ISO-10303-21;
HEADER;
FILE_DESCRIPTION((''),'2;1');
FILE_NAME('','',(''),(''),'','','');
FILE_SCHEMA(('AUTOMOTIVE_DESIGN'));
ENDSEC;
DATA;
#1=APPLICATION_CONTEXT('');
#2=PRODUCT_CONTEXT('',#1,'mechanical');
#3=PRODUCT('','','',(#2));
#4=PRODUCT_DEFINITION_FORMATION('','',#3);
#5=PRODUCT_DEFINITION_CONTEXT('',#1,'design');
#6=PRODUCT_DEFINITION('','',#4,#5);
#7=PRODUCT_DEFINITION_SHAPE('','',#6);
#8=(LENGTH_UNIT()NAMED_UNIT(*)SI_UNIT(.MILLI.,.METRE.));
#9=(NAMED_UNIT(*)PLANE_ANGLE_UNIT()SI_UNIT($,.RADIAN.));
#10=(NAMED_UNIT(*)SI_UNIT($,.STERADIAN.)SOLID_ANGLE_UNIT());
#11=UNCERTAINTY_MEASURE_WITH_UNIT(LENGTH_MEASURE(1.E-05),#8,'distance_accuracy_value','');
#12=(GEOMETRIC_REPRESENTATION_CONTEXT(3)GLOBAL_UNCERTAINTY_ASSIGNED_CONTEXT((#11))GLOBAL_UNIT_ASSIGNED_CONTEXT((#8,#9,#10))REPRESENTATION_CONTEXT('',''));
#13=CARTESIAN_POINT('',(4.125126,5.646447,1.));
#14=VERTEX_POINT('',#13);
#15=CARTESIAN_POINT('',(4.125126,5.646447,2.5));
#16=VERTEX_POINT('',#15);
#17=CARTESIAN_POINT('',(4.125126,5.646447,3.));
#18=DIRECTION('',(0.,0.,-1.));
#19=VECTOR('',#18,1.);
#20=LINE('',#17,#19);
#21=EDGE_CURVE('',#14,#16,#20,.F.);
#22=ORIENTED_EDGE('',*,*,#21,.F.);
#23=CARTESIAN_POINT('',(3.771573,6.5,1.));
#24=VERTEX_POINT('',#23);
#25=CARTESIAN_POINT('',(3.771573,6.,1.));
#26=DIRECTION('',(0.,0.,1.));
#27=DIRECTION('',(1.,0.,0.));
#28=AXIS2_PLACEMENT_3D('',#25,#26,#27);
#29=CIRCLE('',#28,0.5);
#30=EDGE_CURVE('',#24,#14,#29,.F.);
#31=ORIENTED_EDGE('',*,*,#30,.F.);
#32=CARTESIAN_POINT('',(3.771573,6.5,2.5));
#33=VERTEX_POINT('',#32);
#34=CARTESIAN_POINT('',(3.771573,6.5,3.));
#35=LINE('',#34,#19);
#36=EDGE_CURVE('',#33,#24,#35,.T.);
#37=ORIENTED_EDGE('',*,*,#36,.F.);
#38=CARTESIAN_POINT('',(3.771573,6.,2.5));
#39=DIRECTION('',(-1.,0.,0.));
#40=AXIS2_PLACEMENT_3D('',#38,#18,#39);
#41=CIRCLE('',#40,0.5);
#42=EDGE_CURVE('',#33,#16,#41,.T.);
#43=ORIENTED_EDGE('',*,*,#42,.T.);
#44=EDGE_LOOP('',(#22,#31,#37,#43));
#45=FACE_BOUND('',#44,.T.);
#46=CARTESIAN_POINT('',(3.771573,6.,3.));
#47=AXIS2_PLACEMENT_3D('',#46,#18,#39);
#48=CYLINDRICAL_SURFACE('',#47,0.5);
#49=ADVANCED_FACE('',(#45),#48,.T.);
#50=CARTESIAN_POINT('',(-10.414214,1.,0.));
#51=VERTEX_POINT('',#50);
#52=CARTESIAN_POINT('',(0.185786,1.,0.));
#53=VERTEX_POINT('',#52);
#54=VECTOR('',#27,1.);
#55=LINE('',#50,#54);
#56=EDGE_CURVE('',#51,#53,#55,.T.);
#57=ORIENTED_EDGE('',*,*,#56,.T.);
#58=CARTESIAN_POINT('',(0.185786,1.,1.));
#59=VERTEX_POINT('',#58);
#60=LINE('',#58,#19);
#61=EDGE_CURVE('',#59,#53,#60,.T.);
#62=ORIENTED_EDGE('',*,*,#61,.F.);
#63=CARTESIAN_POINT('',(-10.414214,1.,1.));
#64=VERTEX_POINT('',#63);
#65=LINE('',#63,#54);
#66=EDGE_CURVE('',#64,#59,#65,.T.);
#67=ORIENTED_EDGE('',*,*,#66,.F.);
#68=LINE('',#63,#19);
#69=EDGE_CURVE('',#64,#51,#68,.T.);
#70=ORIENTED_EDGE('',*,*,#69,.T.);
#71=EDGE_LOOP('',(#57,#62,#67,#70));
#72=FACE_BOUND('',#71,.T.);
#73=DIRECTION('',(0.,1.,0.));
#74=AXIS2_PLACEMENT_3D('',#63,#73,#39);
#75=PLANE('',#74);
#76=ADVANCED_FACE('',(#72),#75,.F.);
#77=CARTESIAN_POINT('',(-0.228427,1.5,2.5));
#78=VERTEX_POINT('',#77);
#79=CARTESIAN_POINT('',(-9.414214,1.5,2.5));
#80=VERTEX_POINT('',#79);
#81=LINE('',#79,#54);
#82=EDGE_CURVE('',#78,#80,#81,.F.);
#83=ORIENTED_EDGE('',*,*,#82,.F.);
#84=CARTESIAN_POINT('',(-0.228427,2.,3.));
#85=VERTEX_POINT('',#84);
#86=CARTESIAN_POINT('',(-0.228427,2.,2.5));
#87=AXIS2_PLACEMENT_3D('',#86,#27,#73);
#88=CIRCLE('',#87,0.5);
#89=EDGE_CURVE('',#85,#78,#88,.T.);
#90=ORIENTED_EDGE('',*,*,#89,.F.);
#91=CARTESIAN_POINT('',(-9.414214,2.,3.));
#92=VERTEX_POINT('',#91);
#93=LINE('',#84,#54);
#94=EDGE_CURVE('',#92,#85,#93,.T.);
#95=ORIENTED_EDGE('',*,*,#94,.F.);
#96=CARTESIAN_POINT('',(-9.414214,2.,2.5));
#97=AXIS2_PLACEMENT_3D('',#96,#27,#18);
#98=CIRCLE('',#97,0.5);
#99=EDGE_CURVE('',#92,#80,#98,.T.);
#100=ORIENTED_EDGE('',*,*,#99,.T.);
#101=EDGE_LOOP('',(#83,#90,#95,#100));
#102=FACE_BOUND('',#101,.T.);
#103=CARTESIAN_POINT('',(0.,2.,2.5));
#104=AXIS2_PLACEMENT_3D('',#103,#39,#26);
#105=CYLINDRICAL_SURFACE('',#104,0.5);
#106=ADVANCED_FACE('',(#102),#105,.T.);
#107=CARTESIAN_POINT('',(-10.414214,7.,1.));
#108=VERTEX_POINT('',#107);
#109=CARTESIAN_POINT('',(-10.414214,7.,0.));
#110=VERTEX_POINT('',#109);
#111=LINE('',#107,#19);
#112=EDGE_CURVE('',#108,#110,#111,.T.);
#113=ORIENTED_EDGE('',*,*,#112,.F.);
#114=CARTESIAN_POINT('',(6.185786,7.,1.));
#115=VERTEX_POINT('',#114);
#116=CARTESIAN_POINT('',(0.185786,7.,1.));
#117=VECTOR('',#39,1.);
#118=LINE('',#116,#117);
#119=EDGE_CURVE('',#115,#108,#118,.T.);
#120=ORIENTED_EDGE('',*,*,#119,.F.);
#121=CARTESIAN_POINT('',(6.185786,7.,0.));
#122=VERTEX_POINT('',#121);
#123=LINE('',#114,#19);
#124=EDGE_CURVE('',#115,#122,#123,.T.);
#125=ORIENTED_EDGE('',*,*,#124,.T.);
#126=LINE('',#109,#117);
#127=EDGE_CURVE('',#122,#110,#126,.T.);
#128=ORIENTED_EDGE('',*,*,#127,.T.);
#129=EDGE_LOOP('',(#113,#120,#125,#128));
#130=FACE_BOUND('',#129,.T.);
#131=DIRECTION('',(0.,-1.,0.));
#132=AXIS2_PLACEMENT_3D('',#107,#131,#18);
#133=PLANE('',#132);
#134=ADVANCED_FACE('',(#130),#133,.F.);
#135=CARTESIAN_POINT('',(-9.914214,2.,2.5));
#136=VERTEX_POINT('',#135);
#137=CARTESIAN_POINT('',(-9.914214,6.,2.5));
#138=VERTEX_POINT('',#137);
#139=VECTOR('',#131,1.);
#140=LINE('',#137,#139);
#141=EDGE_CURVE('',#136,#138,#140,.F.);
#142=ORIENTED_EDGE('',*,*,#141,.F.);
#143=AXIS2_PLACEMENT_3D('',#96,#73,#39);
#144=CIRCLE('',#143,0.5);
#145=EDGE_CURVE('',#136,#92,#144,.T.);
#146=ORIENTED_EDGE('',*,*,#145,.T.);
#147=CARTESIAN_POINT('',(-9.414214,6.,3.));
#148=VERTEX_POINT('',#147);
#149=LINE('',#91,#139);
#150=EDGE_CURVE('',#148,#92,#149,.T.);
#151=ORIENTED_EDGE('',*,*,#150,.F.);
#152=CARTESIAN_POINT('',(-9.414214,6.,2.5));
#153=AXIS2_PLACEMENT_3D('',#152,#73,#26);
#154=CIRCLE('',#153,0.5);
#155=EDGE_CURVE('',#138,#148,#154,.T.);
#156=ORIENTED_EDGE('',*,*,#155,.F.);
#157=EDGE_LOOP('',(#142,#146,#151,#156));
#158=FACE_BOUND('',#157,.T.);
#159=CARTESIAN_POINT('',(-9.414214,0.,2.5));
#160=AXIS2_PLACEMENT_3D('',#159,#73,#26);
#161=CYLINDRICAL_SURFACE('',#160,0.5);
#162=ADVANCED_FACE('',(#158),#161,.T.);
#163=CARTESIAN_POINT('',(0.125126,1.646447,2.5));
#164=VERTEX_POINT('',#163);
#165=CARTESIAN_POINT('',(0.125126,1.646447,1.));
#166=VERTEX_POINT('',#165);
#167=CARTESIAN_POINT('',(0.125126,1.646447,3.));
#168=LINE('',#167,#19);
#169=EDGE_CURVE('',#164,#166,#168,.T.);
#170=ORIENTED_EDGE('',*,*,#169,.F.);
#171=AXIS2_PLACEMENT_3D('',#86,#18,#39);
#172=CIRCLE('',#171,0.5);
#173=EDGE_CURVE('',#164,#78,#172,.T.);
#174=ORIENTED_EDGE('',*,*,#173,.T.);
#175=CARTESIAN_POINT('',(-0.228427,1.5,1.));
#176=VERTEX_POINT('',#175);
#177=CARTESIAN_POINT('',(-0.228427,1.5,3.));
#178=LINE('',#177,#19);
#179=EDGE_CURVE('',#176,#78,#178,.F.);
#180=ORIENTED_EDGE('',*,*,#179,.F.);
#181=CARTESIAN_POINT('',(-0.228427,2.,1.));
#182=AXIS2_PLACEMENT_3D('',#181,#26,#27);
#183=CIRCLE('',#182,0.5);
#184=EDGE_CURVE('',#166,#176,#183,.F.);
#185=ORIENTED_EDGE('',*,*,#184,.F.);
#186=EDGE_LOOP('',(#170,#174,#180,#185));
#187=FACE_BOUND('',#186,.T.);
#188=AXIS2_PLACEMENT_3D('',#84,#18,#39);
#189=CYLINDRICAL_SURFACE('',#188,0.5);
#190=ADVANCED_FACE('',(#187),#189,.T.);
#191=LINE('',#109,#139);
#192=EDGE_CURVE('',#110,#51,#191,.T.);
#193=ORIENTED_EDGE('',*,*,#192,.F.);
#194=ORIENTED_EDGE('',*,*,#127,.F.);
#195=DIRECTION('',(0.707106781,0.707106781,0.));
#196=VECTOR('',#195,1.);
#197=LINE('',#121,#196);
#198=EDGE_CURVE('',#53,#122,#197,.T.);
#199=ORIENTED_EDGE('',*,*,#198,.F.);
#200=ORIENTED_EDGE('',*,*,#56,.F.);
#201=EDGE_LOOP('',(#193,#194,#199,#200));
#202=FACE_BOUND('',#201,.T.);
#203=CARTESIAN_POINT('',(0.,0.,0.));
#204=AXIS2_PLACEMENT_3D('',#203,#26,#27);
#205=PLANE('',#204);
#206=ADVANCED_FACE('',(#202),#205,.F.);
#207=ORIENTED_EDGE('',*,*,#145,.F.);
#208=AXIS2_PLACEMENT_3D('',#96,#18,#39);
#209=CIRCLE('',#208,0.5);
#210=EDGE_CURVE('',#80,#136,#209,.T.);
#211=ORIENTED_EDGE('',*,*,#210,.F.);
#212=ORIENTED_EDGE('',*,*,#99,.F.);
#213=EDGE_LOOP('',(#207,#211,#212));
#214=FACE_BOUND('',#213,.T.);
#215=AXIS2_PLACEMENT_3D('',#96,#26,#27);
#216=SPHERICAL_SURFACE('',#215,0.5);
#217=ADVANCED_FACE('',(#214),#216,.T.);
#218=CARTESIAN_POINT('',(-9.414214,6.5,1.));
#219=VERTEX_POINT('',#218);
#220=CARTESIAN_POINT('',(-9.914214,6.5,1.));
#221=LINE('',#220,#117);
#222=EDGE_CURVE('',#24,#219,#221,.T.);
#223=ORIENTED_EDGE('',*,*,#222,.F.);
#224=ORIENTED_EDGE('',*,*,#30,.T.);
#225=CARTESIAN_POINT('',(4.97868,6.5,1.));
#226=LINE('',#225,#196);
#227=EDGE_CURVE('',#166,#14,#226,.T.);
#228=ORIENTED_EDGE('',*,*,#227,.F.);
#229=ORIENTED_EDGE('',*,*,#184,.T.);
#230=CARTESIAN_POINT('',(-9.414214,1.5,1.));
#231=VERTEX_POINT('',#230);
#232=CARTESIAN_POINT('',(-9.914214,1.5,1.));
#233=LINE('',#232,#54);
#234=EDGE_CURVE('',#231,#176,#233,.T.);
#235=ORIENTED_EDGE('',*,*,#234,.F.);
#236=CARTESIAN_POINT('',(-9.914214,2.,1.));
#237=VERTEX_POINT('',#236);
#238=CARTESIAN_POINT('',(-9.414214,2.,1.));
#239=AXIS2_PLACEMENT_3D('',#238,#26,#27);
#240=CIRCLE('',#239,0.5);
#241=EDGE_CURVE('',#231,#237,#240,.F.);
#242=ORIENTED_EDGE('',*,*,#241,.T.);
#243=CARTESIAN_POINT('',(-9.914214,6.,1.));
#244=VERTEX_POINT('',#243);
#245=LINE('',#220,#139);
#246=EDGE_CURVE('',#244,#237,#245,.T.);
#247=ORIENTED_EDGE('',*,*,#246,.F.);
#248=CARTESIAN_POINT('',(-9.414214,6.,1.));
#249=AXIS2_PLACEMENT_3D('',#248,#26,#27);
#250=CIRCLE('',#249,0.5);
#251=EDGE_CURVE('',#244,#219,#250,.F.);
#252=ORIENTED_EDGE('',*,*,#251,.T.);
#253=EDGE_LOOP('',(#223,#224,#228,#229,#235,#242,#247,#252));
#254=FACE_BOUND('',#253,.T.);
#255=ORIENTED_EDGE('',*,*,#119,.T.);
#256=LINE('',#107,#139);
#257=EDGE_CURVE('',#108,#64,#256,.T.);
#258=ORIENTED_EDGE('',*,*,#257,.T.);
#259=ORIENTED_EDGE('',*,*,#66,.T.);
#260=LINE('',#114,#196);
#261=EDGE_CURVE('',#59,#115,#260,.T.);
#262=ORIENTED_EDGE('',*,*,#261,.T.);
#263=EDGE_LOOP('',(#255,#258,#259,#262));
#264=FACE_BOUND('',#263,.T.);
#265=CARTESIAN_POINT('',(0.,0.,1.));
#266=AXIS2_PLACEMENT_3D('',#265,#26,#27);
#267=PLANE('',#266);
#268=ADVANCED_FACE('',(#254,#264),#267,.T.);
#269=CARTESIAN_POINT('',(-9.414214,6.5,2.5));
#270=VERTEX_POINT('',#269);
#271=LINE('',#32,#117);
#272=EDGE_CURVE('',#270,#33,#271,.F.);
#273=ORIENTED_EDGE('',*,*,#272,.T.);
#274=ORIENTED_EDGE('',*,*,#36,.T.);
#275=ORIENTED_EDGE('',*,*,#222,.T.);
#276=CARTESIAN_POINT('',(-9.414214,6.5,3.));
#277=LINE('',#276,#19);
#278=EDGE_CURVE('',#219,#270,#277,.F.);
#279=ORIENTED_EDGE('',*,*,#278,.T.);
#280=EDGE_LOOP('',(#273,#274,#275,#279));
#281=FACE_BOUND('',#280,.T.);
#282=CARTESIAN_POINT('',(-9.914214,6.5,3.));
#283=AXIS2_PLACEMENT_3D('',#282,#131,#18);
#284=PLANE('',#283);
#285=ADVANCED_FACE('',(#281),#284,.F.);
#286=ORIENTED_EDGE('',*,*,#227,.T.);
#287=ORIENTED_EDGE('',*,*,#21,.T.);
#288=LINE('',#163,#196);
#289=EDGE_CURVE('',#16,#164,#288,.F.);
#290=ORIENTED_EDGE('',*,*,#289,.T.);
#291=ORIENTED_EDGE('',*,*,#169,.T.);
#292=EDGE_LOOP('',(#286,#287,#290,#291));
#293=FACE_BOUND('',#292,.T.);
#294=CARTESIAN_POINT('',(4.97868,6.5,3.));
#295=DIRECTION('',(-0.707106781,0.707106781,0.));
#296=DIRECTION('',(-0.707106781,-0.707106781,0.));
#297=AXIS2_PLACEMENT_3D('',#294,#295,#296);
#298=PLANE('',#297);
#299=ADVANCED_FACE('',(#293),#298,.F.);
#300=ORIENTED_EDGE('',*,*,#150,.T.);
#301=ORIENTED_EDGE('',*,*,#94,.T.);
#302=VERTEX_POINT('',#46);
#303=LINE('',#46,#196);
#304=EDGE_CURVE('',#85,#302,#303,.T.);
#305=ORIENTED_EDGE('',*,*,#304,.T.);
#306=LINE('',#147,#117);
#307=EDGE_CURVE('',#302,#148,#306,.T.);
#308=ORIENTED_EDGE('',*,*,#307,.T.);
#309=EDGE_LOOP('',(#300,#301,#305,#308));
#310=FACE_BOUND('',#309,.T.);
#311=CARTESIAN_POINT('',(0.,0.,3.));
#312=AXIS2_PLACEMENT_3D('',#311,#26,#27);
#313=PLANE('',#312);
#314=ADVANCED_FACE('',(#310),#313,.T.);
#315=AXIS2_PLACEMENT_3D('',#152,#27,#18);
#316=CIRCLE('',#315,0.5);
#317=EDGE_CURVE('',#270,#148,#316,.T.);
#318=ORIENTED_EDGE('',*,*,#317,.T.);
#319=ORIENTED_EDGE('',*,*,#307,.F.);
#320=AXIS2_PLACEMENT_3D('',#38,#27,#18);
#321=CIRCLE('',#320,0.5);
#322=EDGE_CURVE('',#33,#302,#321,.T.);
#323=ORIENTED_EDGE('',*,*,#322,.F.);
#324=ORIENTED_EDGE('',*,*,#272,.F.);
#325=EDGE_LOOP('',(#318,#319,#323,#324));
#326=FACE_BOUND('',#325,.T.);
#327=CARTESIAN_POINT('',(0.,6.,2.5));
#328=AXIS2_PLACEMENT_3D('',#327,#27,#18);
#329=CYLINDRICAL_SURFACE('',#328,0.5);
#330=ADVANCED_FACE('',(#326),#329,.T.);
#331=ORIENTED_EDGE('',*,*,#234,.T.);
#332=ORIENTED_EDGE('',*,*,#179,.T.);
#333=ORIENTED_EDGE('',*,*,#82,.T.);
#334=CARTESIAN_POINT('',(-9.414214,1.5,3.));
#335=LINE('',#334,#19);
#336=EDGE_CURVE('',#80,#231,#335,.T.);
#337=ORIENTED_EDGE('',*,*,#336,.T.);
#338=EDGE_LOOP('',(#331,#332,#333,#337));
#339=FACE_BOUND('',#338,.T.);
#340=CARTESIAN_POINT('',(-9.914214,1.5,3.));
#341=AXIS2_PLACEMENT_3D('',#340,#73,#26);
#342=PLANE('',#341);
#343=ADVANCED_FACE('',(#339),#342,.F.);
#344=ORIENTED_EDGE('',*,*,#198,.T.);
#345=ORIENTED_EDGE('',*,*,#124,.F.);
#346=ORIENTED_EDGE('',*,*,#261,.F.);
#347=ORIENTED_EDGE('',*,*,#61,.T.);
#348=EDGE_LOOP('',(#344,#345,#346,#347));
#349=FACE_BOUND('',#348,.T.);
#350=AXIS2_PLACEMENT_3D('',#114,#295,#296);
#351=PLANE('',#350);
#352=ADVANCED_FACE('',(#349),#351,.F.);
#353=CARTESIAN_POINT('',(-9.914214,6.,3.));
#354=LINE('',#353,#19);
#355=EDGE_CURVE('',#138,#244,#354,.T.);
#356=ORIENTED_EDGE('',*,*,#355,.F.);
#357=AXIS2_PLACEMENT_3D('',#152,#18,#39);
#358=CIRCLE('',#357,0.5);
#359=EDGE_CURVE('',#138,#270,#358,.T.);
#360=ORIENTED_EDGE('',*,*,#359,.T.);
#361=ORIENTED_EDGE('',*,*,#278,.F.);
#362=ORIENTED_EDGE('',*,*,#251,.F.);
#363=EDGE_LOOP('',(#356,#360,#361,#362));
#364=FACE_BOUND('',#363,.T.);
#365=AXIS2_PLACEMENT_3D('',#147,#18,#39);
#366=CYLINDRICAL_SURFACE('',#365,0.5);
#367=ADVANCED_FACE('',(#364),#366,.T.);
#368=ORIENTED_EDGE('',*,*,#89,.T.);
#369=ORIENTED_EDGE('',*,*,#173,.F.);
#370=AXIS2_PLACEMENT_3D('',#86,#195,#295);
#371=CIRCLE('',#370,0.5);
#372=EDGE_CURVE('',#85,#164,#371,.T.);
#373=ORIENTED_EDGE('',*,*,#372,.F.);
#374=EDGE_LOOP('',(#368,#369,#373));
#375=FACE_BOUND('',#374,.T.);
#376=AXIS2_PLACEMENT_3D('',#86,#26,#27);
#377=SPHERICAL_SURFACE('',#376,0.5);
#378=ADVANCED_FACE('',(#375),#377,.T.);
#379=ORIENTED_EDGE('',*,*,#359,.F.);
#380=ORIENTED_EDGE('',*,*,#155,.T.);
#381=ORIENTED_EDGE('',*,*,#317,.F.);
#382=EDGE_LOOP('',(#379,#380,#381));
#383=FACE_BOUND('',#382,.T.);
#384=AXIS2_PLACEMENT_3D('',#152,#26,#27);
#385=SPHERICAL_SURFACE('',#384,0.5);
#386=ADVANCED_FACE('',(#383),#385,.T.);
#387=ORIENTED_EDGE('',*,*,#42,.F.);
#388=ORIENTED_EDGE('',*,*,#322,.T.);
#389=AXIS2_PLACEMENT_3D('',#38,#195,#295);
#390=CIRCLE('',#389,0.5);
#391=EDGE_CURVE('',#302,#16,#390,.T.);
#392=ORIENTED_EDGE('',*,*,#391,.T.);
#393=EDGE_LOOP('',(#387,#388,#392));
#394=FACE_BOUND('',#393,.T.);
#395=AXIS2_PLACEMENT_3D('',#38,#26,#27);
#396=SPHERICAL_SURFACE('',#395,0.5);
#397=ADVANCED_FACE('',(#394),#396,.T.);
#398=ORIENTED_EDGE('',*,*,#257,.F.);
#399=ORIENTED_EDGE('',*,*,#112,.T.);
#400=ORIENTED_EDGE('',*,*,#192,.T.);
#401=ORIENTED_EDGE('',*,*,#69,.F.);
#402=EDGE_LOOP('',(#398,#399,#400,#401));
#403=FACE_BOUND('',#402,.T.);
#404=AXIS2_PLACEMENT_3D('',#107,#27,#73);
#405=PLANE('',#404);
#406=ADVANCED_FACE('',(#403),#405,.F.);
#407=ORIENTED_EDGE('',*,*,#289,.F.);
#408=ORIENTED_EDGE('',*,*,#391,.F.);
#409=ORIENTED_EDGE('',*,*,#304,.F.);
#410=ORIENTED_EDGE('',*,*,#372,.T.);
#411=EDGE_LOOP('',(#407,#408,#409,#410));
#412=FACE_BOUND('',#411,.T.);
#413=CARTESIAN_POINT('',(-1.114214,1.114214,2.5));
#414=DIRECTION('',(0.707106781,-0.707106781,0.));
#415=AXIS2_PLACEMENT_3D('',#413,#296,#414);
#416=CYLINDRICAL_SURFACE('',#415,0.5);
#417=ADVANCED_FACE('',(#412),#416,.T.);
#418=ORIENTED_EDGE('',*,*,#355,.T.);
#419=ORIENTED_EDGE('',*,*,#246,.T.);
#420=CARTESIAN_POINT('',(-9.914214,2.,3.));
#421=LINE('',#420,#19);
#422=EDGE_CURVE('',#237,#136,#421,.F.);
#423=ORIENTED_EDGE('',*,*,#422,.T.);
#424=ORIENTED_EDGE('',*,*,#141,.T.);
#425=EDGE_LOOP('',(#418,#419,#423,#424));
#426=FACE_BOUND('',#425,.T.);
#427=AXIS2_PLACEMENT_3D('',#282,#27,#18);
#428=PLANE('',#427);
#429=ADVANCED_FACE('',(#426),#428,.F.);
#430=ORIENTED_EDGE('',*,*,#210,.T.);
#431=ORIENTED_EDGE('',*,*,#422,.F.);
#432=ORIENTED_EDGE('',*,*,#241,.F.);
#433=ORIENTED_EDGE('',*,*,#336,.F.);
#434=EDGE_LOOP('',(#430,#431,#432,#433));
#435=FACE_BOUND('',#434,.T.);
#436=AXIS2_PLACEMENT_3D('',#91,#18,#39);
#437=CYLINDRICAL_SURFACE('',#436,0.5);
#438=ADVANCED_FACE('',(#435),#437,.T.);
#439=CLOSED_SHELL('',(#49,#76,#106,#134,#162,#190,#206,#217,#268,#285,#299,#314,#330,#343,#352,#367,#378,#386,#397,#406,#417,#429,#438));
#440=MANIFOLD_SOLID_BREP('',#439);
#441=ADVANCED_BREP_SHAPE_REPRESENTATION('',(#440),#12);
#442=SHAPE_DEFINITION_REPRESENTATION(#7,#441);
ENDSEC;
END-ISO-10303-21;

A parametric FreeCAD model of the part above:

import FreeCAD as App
import Part
import Sketcher
from FreeCAD import Vector
Q = App.Units.Quantity


def edges_at(feature, points):
    """Names of the edges that pass closest to the given points."""
    edges = feature.Shape.Edges
    near = lambda p: min(range(len(edges)), key=lambda i: edges[i].distToShape(Part.Vertex(*p))[0])
    return sorted({f"Edge{near(p) + 1}" for p in points})

doc = App.newDocument("Part")
body = doc.addObject("PartDesign::Body", "Body")

# Sketch on XY plane
sketch1 = body.newObject("Sketcher::SketchObject", "Sketch")
sketch1.AttachmentSupport = (doc.getObject("XY_Plane"), [""])
sketch1.MapMode = "FlatFace"
sketch1.addGeometry([
    Part.LineSegment(Vector(6, 7, 0), Vector(-10, 7, 0)),
    Part.LineSegment(Vector(-10, 7, 0), Vector(-10, 1, 0)),
    Part.LineSegment(Vector(-10, 1, 0), Vector(0, 1, 0)),
    Part.LineSegment(Vector(0, 1, 0), Vector(6, 7, 0)),
], False)
sketch1.addConstraint([
    Sketcher.Constraint("Coincident", 0, 2, 1, 1),
    Sketcher.Constraint("Coincident", 1, 2, 2, 1),
    Sketcher.Constraint("Coincident", 2, 2, 3, 1),
    Sketcher.Constraint("Coincident", 3, 2, 0, 1),
    Sketcher.Constraint("Horizontal", 0),
    Sketcher.Constraint("Vertical", 1),
    Sketcher.Constraint("Horizontal", 2),
    Sketcher.Constraint("DistanceY", 1, 2, 1, 1, 6.0),
    Sketcher.Constraint("Angle", 3, Q("45 deg")),
    Sketcher.Constraint("DistanceX", 0, 2, 0, 1, 16.6),
    Sketcher.Constraint("DistanceY", -1, 1, 0, 2, 7.0),
    Sketcher.Constraint("DistanceX", 0, 2, -1, 1, 10.414214),
])
pad1 = body.newObject("PartDesign::Pad", "Pad")
pad1.Profile = sketch1
pad1.Length = 1

# Sketch on XY plane
sketch2 = body.newObject("Sketcher::SketchObject", "Sketch001")
sketch2.AttachmentSupport = (doc.getObject("XY_Plane"), [""])
sketch2.MapMode = "FlatFace"
sketch2.AttachmentOffset = App.Placement(Vector(0, 0, 1), App.Rotation())
sketch2.addGeometry([
    Part.LineSegment(Vector(5, 6, 0), Vector(-10, 6, 0)),
    Part.LineSegment(Vector(-10, 6, 0), Vector(-10, 2, 0)),
    Part.LineSegment(Vector(-10, 2, 0), Vector(0, 2, 0)),
    Part.LineSegment(Vector(0, 2, 0), Vector(5, 6, 0)),
], False)
sketch2.addConstraint([
    Sketcher.Constraint("Coincident", 0, 2, 1, 1),
    Sketcher.Constraint("Coincident", 1, 2, 2, 1),
    Sketcher.Constraint("Coincident", 2, 2, 3, 1),
    Sketcher.Constraint("Coincident", 3, 2, 0, 1),
    Sketcher.Constraint("Horizontal", 0),
    Sketcher.Constraint("Vertical", 1),
    Sketcher.Constraint("Horizontal", 2),
    Sketcher.Constraint("DistanceY", 1, 2, 1, 1, 5.0),
    Sketcher.Constraint("Angle", 3, Q("45 deg")),
    Sketcher.Constraint("DistanceY", -1, 1, 0, 2, 6.5),
    Sketcher.Constraint("DistanceX", 0, 2, 0, 1, 14.892893),
    Sketcher.Constraint("DistanceX", 2, 2, -1, 1, 0.02132),
])
pad2 = body.newObject("PartDesign::Pad", "Pad001")
pad2.Profile = sketch2
pad2.Length = 2
doc.recompute()

fillet = body.newObject("PartDesign::Fillet", "Fillet")
fillet.Base = (pad2, edges_at(pad2, [
    (-9.914, 6.5, 2),
    (-9.914, 1.5, 2),
    (-0.021, 1.5, 2),
    (4.979, 6.5, 2),
]))
fillet.Radius = 0.5
doc.recompute()

fillet2 = body.newObject("PartDesign::Fillet", "Fillet001")
fillet2.Base = (fillet, edges_at(fillet, [
    (-2.821, 6.5, 3),
    (2.125, 3.646, 3),
    (-9.914, 4, 3),
    (-4.821, 1.5, 3),
    (-0.037, 1.538, 3),
    (-9.768, 1.646, 3),
    (-9.768, 6.354, 3),
    (4.234, 6.191, 3),
]))
fillet2.Radius = 0.5

doc.recompute()
